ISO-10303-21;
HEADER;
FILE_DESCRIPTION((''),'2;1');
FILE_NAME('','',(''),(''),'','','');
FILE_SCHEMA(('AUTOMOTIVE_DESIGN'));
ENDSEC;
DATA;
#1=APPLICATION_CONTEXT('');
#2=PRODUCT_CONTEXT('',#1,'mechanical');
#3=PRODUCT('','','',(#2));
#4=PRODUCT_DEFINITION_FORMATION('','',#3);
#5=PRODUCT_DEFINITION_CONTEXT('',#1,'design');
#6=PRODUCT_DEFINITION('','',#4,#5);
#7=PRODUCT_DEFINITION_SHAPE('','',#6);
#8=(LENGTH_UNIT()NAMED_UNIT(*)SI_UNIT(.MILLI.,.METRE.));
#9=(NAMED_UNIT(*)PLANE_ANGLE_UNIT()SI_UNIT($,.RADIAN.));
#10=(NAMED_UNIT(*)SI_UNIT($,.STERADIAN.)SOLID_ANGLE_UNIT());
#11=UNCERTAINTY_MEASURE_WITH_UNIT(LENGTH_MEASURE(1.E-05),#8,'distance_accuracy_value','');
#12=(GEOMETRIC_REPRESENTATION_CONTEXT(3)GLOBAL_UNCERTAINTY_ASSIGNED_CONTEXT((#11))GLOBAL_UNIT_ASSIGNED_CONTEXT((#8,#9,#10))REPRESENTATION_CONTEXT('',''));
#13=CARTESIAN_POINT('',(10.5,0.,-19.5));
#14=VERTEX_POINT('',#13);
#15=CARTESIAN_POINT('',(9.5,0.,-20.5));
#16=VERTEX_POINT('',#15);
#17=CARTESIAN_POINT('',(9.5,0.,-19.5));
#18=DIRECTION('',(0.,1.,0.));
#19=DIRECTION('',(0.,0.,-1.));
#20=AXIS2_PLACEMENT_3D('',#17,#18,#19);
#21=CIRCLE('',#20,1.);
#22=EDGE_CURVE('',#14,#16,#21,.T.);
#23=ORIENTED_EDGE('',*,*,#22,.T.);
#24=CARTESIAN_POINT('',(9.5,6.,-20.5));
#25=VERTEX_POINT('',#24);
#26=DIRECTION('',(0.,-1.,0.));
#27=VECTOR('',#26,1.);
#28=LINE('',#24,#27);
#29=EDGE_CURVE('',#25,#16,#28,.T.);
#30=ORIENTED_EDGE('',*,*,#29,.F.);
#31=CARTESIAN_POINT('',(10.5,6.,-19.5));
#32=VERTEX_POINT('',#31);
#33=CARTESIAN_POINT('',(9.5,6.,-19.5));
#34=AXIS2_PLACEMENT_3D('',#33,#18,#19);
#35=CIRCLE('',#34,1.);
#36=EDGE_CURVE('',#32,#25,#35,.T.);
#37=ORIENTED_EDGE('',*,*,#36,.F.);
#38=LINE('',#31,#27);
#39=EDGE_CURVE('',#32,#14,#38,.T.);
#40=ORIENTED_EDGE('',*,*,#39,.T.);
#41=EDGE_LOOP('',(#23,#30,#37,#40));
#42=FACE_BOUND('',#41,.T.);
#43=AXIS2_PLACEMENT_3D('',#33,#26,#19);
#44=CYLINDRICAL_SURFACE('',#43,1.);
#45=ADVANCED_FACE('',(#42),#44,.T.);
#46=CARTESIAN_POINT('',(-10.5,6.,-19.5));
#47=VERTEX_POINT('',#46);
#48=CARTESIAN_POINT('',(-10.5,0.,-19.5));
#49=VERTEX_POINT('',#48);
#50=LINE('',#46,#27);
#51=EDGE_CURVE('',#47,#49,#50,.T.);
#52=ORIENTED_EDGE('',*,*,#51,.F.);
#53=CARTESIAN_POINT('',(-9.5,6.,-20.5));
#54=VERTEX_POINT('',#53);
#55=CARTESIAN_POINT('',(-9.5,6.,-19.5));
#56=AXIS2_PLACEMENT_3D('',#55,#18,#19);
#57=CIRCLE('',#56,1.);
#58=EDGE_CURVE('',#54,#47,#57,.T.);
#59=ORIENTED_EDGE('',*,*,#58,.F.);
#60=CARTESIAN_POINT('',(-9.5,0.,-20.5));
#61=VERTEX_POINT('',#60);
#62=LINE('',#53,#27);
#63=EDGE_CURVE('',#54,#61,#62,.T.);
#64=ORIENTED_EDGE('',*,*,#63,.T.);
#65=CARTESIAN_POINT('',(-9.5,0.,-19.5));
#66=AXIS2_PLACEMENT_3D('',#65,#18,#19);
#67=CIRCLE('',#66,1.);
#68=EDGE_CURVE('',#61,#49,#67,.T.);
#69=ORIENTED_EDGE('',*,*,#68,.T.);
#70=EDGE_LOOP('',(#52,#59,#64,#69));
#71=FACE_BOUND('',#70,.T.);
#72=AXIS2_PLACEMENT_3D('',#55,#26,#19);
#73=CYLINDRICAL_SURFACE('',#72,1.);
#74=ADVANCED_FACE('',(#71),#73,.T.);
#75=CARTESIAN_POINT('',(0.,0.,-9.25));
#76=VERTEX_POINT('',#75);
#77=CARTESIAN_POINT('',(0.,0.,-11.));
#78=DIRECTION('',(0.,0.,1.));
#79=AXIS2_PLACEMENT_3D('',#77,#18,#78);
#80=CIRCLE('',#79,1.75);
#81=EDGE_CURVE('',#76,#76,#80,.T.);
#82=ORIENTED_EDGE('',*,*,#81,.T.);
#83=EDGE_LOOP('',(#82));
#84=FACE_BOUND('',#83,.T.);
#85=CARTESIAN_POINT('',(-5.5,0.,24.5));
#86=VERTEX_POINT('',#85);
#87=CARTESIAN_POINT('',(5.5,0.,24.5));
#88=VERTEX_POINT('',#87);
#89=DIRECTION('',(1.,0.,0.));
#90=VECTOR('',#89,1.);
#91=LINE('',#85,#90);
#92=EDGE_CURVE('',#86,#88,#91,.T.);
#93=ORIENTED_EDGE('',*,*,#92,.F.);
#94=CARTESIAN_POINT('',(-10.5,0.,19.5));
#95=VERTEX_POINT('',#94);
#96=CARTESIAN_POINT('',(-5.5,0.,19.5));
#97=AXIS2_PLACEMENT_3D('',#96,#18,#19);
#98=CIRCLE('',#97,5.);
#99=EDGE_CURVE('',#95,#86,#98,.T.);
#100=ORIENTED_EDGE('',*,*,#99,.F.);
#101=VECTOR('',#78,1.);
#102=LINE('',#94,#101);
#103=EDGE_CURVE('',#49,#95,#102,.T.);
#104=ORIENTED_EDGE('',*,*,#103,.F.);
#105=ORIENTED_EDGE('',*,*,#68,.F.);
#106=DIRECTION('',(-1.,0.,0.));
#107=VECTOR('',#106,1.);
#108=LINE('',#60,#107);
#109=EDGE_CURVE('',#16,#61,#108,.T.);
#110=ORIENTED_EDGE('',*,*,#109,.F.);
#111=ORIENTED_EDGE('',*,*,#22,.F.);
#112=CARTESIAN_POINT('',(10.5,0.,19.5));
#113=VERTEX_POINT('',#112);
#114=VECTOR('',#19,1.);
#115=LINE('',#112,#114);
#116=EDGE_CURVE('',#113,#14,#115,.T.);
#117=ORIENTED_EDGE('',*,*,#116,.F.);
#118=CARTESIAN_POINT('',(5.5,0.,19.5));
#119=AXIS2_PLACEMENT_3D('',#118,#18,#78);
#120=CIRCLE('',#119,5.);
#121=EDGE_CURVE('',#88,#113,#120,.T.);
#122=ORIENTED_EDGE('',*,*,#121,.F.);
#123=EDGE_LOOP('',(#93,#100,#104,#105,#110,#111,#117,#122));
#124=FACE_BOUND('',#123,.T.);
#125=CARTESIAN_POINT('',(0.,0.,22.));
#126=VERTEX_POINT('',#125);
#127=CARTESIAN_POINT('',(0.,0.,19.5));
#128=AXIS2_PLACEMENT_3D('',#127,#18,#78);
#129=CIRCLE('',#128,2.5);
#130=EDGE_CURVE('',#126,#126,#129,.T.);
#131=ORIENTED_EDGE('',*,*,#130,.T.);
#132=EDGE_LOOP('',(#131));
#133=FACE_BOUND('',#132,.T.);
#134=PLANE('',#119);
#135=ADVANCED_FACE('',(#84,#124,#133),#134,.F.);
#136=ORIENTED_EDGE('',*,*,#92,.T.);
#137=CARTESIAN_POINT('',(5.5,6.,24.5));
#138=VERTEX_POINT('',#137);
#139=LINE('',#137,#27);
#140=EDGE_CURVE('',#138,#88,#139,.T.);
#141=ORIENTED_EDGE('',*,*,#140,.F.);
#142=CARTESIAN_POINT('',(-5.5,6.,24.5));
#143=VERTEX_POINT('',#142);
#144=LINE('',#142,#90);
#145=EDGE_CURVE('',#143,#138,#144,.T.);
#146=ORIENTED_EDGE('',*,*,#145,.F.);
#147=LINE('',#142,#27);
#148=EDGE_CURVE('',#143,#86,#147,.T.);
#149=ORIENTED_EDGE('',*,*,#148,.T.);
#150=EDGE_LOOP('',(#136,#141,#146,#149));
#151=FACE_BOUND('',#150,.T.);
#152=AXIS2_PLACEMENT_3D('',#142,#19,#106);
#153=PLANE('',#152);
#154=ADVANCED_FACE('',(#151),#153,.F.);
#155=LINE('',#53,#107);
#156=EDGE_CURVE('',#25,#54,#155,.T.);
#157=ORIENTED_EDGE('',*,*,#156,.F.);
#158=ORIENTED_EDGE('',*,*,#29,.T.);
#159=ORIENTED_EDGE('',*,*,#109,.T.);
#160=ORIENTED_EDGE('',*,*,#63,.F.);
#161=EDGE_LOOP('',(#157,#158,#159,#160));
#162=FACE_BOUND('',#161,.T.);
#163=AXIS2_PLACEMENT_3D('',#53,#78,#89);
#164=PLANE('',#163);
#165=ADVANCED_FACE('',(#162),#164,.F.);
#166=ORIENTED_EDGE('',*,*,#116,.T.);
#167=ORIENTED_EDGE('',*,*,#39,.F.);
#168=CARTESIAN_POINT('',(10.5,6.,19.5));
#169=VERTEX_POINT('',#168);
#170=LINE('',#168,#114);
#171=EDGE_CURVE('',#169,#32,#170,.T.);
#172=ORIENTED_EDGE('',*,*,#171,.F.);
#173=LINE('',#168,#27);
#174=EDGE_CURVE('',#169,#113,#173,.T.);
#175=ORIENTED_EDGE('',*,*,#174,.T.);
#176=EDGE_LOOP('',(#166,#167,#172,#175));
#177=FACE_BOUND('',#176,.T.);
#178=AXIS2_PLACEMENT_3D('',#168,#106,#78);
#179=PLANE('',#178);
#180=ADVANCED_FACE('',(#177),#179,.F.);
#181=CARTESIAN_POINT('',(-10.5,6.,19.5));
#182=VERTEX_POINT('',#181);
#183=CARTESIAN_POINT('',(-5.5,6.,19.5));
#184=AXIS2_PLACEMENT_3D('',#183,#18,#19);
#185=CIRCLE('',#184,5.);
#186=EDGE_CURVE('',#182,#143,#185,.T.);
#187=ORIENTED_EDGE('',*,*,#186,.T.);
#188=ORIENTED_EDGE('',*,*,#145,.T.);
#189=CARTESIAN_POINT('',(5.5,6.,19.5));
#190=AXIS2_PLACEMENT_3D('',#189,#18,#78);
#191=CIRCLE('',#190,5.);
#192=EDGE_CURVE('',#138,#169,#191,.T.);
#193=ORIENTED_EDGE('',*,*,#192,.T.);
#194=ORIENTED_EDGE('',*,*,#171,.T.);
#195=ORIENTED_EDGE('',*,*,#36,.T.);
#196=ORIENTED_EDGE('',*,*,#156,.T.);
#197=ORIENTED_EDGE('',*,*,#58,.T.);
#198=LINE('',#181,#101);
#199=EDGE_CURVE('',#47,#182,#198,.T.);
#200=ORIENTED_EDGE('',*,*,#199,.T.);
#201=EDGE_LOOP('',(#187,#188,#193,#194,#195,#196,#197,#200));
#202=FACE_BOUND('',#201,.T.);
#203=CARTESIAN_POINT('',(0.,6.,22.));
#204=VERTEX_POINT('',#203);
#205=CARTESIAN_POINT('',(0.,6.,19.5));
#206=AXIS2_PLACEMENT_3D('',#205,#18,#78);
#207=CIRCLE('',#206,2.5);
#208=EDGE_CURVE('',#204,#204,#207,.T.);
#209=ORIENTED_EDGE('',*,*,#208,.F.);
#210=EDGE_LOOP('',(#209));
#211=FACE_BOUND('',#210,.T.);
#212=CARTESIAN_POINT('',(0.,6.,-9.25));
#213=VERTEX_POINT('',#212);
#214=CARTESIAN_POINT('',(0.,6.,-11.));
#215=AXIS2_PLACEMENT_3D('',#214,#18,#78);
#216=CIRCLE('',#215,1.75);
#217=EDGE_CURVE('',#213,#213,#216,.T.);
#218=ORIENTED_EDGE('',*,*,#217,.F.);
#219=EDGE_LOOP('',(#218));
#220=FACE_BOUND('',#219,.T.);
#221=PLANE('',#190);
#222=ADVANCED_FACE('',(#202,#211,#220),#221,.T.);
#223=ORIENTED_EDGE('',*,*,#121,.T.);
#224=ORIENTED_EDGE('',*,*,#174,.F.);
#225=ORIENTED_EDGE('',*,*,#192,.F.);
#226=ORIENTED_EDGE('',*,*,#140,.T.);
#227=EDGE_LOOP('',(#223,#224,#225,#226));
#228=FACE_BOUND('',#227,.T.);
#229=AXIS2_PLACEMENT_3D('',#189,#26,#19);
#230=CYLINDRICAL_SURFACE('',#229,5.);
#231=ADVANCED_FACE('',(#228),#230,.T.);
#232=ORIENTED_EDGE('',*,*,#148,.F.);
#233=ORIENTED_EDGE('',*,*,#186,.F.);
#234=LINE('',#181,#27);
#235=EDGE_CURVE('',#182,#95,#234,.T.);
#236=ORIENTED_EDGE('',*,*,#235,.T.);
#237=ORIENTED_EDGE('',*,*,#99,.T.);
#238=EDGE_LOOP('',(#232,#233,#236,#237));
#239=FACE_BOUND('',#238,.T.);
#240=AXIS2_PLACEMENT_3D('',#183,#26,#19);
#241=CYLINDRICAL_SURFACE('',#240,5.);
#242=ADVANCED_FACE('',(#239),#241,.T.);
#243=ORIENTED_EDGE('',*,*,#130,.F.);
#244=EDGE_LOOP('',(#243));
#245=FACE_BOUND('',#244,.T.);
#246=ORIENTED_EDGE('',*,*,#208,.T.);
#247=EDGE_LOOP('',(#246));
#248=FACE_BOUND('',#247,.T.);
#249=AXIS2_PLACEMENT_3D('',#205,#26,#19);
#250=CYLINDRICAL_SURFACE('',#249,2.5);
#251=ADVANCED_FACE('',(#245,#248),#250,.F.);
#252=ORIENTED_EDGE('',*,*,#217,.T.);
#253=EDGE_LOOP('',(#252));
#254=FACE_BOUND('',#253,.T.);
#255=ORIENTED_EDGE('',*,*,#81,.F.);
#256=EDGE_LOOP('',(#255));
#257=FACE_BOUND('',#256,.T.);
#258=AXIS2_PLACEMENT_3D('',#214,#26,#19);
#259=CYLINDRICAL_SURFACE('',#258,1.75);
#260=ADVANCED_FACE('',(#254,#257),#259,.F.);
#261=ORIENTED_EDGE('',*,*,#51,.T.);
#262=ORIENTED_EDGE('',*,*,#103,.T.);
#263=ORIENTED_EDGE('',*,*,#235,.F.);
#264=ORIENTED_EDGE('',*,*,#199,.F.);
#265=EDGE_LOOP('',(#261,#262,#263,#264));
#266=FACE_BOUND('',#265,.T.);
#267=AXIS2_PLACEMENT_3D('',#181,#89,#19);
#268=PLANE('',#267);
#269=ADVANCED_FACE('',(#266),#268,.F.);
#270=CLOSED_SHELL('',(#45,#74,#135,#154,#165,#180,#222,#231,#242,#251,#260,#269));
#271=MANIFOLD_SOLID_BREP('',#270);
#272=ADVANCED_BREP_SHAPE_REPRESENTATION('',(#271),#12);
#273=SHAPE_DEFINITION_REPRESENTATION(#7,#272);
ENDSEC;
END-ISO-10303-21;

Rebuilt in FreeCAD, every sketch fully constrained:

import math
import FreeCAD as App
import Part
import Sketcher
from FreeCAD import Vector
Q = App.Units.Quantity

doc = App.newDocument("Part")
body = doc.addObject("PartDesign::Body", "Body")

sketch1 = body.newObject("Sketcher::SketchObject", "Sketch")
sketch1.AttachmentSupport = (doc.getObject("XZ_Plane"), [""])
sketch1.MapMode = "FlatFace"
sketch1.addGeometry(Part.LineSegment(Vector(-5.5, 24.5, 0), Vector(5.5, 24.5, 0)), False)
sketch1.addGeometry(Part.ArcOfCircle(Part.Circle(Vector(5.5, 19.5, 0), Vector(0, 0, 1), 5), math.radians(0), math.radians(90)), False)
sketch1.addGeometry(Part.LineSegment(Vector(10.5, 19.5, 0), Vector(10.5, -19.5, 0)), False)
sketch1.addGeometry(Part.ArcOfCircle(Part.Circle(Vector(9.5, -19.5, 0), Vector(0, 0, 1), 1), math.radians(-90), math.radians(0)), False)
sketch1.addGeometry(Part.LineSegment(Vector(9.5, -20.5, 0), Vector(-9.5, -20.5, 0)), False)
sketch1.addGeometry(Part.ArcOfCircle(Part.Circle(Vector(-9.5, -19.5, 0), Vector(0, 0, 1), 1), math.radians(-180), math.radians(-90)), False)
sketch1.addGeometry(Part.LineSegment(Vector(-10.5, -19.5, 0), Vector(-10.5, 19.5, 0)), False)
sketch1.addGeometry(Part.ArcOfCircle(Part.Circle(Vector(-5.5, 19.5, 0), Vector(0, 0, 1), 5), math.radians(90), math.radians(180)), False)
sketch1.addGeometry(Part.Circle(Vector(0, 19.5, 0), Vector(0, 0, 1), 2.5), False)
sketch1.addGeometry(Part.Circle(Vector(0, -11, 0), Vector(0, 0, 1), 1.75), False)
sketch1.addConstraint(Sketcher.Constraint("Tangent", 0, 2, 1, 2))
sketch1.addConstraint(Sketcher.Constraint("Tangent", 1, 1, 2, 1))
sketch1.addConstraint(Sketcher.Constraint("Tangent", 2, 2, 3, 2))
sketch1.addConstraint(Sketcher.Constraint("Tangent", 3, 1, 4, 1))
sketch1.addConstraint(Sketcher.Constraint("Tangent", 4, 2, 5, 2))
sketch1.addConstraint(Sketcher.Constraint("Tangent", 5, 1, 6, 1))
sketch1.addConstraint(Sketcher.Constraint("Tangent", 6, 2, 7, 2))
sketch1.addConstraint(Sketcher.Constraint("Tangent", 7, 1, 0, 1))
sketch1.addConstraint(Sketcher.Constraint("Horizontal", 0))
sketch1.addConstraint(Sketcher.Constraint("Vertical", 2))
sketch1.addConstraint(Sketcher.Constraint("Horizontal", 4))
sketch1.addConstraint(Sketcher.Constraint("Vertical", 6))
sketch1.addConstraint(Sketcher.Constraint("Equal", 3, 5))
sketch1.addConstraint(Sketcher.Constraint("Equal", 1, 7))
sketch1.addConstraint(Sketcher.Constraint("Symmetric", 1, 1, 5, 1, -1, 1))
sketch1.addConstraint(Sketcher.Constraint("PointOnObject", 8, 3, -2))
sketch1.addConstraint(Sketcher.Constraint("PointOnObject", 9, 3, -2))
sketch1.addConstraint(Sketcher.Constraint("Horizontal", 7, 3, 8, 3))
sketch1.addConstraint(Sketcher.Constraint("Diameter", 8, Q("5 mm")))
sketch1.addConstraint(Sketcher.Constraint("Radius", 1, Q("5 mm")))
sketch1.addConstraint(Sketcher.Constraint("Radius", 3, Q("1 mm")))
sketch1.addConstraint(Sketcher.Constraint("Diameter", 9, Q("3.5 mm")))
sketch1.addConstraint(Sketcher.Constraint("DistanceX", 0, 1, 0, 2, Q("11 mm")))
sketch1.addConstraint(Sketcher.Constraint("DistanceY", 2, 2, 2, 1, Q("39 mm")))
sketch1.addConstraint(Sketcher.Constraint("DistanceY", 9, 3, -1, 1, Q("11 mm")))
pad1 = body.newObject("PartDesign::Pad", "Pad")
pad1.Profile = sketch1
pad1.Length = 6
pad1.Reversed = True

doc.recompute()
